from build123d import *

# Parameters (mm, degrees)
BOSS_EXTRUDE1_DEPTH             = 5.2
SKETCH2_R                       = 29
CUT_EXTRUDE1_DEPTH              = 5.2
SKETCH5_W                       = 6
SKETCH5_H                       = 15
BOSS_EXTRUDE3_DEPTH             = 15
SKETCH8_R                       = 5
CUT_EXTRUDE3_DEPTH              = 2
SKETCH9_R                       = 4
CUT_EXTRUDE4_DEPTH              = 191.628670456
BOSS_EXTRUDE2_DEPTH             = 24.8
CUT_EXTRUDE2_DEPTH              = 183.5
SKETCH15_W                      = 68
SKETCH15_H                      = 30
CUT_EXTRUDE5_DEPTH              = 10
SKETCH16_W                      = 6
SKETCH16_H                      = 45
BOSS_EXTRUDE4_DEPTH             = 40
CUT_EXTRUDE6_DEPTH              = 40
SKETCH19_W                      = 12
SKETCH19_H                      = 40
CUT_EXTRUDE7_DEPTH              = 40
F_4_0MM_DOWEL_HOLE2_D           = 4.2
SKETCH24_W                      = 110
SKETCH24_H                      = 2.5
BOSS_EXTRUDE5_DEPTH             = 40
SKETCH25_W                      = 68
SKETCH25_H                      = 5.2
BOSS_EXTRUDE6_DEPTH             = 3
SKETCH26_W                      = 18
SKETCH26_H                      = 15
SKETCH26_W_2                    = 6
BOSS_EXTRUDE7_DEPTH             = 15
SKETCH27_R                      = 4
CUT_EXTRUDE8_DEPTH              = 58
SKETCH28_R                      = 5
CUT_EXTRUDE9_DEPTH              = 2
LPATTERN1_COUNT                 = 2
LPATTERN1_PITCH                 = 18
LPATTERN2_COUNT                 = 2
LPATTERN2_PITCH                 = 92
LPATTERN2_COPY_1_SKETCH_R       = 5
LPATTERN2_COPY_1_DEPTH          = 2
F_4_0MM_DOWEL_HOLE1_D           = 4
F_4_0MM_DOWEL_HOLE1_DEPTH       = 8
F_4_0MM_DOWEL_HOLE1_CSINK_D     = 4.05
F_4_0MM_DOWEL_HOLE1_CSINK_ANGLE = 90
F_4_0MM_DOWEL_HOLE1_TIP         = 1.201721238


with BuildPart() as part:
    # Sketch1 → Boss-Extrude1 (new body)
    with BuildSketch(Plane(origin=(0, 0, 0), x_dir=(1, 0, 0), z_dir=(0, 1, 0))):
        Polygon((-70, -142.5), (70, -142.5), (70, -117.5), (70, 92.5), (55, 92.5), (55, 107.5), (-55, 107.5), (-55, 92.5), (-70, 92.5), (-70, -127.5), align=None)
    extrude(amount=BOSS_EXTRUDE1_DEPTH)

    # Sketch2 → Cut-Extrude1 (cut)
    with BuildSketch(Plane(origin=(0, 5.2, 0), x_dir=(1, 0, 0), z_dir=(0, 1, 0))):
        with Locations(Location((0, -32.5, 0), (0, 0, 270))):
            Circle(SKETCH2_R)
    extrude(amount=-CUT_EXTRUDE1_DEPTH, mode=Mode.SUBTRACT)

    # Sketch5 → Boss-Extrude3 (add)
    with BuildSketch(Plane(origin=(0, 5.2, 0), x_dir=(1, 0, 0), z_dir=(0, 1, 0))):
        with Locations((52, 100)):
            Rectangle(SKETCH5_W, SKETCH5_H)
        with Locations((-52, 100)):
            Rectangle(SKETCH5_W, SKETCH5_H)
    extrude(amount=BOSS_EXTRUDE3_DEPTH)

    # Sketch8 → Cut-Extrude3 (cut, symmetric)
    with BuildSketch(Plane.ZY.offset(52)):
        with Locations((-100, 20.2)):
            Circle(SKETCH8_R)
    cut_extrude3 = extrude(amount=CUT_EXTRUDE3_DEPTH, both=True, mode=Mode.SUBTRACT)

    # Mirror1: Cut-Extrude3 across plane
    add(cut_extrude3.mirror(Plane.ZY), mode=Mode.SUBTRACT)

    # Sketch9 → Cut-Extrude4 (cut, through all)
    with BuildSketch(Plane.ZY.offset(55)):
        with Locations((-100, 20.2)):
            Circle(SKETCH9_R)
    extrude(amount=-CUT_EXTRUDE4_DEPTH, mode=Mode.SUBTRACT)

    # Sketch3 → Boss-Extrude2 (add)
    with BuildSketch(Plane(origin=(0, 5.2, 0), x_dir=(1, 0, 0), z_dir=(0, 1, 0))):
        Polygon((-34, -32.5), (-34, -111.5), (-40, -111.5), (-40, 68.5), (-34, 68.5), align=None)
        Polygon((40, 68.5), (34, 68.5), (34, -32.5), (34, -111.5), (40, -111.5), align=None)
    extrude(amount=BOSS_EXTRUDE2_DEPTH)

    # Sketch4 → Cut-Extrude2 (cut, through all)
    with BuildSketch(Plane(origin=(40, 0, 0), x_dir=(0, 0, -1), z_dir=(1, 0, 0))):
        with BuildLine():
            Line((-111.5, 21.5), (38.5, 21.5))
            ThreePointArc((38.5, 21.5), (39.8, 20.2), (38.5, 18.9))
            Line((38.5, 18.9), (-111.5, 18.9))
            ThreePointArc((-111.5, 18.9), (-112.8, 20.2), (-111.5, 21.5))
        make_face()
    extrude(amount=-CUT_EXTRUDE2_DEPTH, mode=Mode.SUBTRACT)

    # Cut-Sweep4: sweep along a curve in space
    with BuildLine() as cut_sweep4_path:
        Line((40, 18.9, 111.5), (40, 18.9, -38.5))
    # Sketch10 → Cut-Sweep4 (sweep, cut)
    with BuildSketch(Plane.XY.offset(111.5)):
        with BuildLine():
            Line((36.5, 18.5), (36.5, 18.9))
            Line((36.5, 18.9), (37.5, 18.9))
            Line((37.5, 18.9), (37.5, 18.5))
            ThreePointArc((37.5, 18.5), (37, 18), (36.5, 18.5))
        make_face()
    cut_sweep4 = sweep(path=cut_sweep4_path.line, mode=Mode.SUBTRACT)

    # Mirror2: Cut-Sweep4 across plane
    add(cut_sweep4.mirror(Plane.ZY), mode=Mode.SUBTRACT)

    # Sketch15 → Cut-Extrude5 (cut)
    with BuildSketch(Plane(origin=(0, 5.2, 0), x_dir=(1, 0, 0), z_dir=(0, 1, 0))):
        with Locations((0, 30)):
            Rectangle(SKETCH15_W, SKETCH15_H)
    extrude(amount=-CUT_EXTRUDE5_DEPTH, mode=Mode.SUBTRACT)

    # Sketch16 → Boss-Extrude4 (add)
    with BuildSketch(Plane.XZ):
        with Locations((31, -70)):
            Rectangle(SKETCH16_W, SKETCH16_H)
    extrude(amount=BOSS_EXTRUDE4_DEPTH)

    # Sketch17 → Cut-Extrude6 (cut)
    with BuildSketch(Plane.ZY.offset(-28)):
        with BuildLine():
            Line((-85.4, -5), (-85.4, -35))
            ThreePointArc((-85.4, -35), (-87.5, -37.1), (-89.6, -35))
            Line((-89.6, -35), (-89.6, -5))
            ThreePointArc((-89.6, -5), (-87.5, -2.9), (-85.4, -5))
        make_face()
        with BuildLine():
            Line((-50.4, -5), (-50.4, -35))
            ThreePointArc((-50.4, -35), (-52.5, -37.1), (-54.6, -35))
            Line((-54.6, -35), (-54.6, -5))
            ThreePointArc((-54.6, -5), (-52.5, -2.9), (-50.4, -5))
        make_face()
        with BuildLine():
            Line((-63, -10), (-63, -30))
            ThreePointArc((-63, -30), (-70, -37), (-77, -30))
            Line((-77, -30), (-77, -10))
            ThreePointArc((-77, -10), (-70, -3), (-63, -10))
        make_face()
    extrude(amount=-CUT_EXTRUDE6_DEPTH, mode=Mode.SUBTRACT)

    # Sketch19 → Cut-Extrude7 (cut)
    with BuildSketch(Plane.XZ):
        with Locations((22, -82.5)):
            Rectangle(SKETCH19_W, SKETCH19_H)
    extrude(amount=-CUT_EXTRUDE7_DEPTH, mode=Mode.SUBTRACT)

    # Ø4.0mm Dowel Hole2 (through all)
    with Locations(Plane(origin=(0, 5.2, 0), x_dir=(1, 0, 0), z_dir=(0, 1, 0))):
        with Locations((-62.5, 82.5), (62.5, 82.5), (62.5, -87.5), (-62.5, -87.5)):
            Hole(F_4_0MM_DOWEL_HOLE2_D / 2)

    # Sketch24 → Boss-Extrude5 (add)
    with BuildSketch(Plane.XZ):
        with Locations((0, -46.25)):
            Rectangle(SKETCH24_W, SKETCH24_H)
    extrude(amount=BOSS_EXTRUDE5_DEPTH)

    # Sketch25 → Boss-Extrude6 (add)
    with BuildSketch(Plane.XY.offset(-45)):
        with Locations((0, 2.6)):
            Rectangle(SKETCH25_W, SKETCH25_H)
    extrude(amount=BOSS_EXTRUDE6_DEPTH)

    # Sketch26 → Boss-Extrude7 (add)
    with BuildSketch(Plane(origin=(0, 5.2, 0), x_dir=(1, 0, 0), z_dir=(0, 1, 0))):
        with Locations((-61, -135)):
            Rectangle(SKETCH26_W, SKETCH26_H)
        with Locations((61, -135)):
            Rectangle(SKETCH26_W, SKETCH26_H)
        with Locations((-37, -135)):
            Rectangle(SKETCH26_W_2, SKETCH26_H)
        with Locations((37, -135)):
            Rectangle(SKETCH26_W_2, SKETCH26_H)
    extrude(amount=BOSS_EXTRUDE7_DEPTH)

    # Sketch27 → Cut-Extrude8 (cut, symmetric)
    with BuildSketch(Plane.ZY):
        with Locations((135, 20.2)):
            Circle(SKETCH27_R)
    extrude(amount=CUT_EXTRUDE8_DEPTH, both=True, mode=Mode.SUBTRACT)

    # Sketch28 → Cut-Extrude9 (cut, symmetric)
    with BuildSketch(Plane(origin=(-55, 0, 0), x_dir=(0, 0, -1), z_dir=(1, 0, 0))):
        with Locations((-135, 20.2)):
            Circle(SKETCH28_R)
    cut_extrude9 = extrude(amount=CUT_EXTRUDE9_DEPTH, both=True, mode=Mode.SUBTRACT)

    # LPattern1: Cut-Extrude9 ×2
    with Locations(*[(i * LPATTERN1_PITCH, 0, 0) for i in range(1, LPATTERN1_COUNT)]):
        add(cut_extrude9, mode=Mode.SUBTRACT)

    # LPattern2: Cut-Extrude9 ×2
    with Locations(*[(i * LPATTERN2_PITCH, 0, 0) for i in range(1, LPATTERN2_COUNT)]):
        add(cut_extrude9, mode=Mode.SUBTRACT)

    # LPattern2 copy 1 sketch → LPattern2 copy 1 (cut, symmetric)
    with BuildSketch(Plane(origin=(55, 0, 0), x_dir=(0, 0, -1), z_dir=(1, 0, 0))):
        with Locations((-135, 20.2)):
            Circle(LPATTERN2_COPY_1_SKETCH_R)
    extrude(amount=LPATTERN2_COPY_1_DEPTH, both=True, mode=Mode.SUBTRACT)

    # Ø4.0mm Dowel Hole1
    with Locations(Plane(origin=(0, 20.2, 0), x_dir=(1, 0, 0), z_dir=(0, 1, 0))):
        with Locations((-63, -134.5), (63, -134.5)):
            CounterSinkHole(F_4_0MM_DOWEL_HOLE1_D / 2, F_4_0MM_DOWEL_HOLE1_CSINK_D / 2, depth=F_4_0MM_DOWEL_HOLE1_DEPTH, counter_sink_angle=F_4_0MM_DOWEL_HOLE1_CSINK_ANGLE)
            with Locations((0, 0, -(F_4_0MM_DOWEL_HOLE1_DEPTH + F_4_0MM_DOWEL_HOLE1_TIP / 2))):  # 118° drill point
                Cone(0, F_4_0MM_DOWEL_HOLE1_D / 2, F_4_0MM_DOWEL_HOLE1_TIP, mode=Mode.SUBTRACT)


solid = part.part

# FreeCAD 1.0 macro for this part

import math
import FreeCAD as App
import Part
import Sketcher

doc = App.newDocument("Part")
body = doc.addObject("PartDesign::Body", "Body")

sketch1 = body.newObject("Sketcher::SketchObject", "Sketch")
sketch1.AttachmentSupport = (doc.getObject("XZ_Plane"), [""])
sketch1.MapMode = "FlatFace"
sketch1.addGeometry(Part.LineSegment(App.Vector(-70, 142.5, 0), App.Vector(70, 142.5, 0)), False)
sketch1.addGeometry(Part.LineSegment(App.Vector(70, 142.5, 0), App.Vector(70, -92.5, 0)), False)
sketch1.addGeometry(Part.LineSegment(App.Vector(70, -92.5, 0), App.Vector(55, -92.5, 0)), False)
sketch1.addGeometry(Part.LineSegment(App.Vector(55, -92.5, 0), App.Vector(55, -107.5, 0)), False)
sketch1.addGeometry(Part.LineSegment(App.Vector(55, -107.5, 0), App.Vector(-55, -107.5, 0)), False)
sketch1.addGeometry(Part.LineSegment(App.Vector(-55, -107.5, 0), App.Vector(-55, -92.5, 0)), False)
sketch1.addGeometry(Part.LineSegment(App.Vector(-55, -92.5, 0), App.Vector(-70, -92.5, 0)), False)
sketch1.addGeometry(Part.LineSegment(App.Vector(-70, -92.5, 0), App.Vector(-70, 142.5, 0)), False)
sketch1.addConstraint(Sketcher.Constraint("Coincident", 0, 2, 1, 1))
sketch1.addConstraint(Sketcher.Constraint("Coincident", 1, 2, 2, 1))
sketch1.addConstraint(Sketcher.Constraint("Coincident", 2, 2, 3, 1))
sketch1.addConstraint(Sketcher.Constraint("Coincident", 3, 2, 4, 1))
sketch1.addConstraint(Sketcher.Constraint("Coincident", 4, 2, 5, 1))
sketch1.addConstraint(Sketcher.Constraint("Coincident", 5, 2, 6, 1))
sketch1.addConstraint(Sketcher.Constraint("Coincident", 6, 2, 7, 1))
sketch1.addConstraint(Sketcher.Constraint("Coincident", 7, 2, 0, 1))
sketch1.addConstraint(Sketcher.Constraint("Horizontal", 0))
sketch1.addConstraint(Sketcher.Constraint("Vertical", 1))
sketch1.addConstraint(Sketcher.Constraint("Horizontal", 2))
sketch1.addConstraint(Sketcher.Constraint("Vertical", 3))
sketch1.addConstraint(Sketcher.Constraint("Horizontal", 4))
sketch1.addConstraint(Sketcher.Constraint("Vertical", 5))
sketch1.addConstraint(Sketcher.Constraint("Horizontal", 6))
sketch1.addConstraint(Sketcher.Constraint("Vertical", 7))
sketch1.addConstraint(Sketcher.Constraint("Symmetric", 2, 2, 5, 2, -2))
sketch1.addConstraint(Sketcher.Constraint("Equal", 2, 6))
sketch1.addConstraint(Sketcher.Constraint("Equal", 6, 3))
sketch1.addConstraint(Sketcher.Constraint("DistanceX", 0, 1, 0, 2, 140.0))
sketch1.addConstraint(Sketcher.Constraint("DistanceX", 2, 2, 2, 1, 15.0))
sketch1.addConstraint(Sketcher.Constraint("DistanceY", 1, 2, 1, 1, 235.0))
sketch1.addConstraint(Sketcher.Constraint("DistanceY", -1, 1, 0, 2, 142.5))
pad1 = body.newObject("PartDesign::Pad", "Pad")
pad1.Profile = sketch1
pad1.Length = 5.2
pad1.Reversed = True

sketch2 = body.newObject("Sketcher::SketchObject", "Sketch001")
sketch2.AttachmentSupport = (doc.getObject("XZ_Plane"), [""])
sketch2.MapMode = "FlatFace"
sketch2.AttachmentOffset = App.Placement(App.Vector(0, 0, -5.2), App.Rotation())
sketch2.addGeometry(Part.Circle(App.Vector(0, 32.5, 0), App.Vector(0, 0, 1), 29), False)
sketch2.addConstraint(Sketcher.Constraint("PointOnObject", 0, 3, -2))
sketch2.addConstraint(Sketcher.Constraint("Diameter", 0, 58.0))
sketch2.addConstraint(Sketcher.Constraint("DistanceY", -1, 1, 0, 3, 32.5))
pocket1 = body.newObject("PartDesign::Pocket", "Pocket")
pocket1.Profile = sketch2
pocket1.Length = 5.2
pocket1.Reversed = True

sketch3 = body.newObject("Sketcher::SketchObject", "Sketch002")
sketch3.AttachmentSupport = (doc.getObject("XZ_Plane"), [""])
sketch3.MapMode = "FlatFace"
sketch3.AttachmentOffset = App.Placement(App.Vector(0, 0, -5.2), App.Rotation())
sketch3.addGeometry(Part.LineSegment(App.Vector(49, -107.5, 0), App.Vector(49, -92.5, 0)), False)
sketch3.addGeometry(Part.LineSegment(App.Vector(49, -92.5, 0), App.Vector(55, -92.5, 0)), False)
sketch3.addGeometry(Part.LineSegment(App.Vector(55, -92.5, 0), App.Vector(55, -107.5, 0)), False)
sketch3.addGeometry(Part.LineSegment(App.Vector(55, -107.5, 0), App.Vector(49, -107.5, 0)), False)
sketch3.addGeometry(Part.LineSegment(App.Vector(-55, -107.5, 0), App.Vector(-55, -92.5, 0)), False)
sketch3.addGeometry(Part.LineSegment(App.Vector(-55, -92.5, 0), App.Vector(-49, -92.5, 0)), False)
sketch3.addGeometry(Part.LineSegment(App.Vector(-49, -92.5, 0), App.Vector(-49, -107.5, 0)), False)
sketch3.addGeometry(Part.LineSegment(App.Vector(-49, -107.5, 0), App.Vector(-55, -107.5, 0)), False)
sketch3.addConstraint(Sketcher.Constraint("Coincident", 0, 2, 1, 1))
sketch3.addConstraint(Sketcher.Constraint("Coincident", 1, 2, 2, 1))
sketch3.addConstraint(Sketcher.Constraint("Coincident", 2, 2, 3, 1))
sketch3.addConstraint(Sketcher.Constraint("Coincident", 3, 2, 0, 1))
sketch3.addConstraint(Sketcher.Constraint("Coincident", 4, 2, 5, 1))
sketch3.addConstraint(Sketcher.Constraint("Coincident", 5, 2, 6, 1))
sketch3.addConstraint(Sketcher.Constraint("Coincident", 6, 2, 7, 1))
sketch3.addConstraint(Sketcher.Constraint("Coincident", 7, 2, 4, 1))
sketch3.addConstraint(Sketcher.Constraint("Vertical", 0))
sketch3.addConstraint(Sketcher.Constraint("Horizontal", 1))
sketch3.addConstraint(Sketcher.Constraint("Vertical", 2))
sketch3.addConstraint(Sketcher.Constraint("Horizontal", 3))
sketch3.addConstraint(Sketcher.Constraint("Vertical", 4))
sketch3.addConstraint(Sketcher.Constraint("Horizontal", 5))
sketch3.addConstraint(Sketcher.Constraint("Vertical", 6))
sketch3.addConstraint(Sketcher.Constraint("Horizontal", 7))
sketch3.addConstraint(Sketcher.Constraint("Symmetric", 1, 2, 4, 2, -2))
sketch3.addConstraint(Sketcher.Constraint("Symmetric", 3, 2, 6, 2, -2))
sketch3.addConstraint(Sketcher.Constraint("DistanceX", 1, 1, 1, 2, 6.0))
sketch3.addConstraint(Sketcher.Constraint("DistanceY", 0, 1, 0, 2, 15.0))
sketch3.addConstraint(Sketcher.Constraint("DistanceX", -1, 1, 0, 2, 49.0))
sketch3.addConstraint(Sketcher.Constraint("DistanceY", 0, 2, -1, 1, 92.5))
pad2 = body.newObject("PartDesign::Pad", "Pad001")
pad2.Profile = sketch3
pad2.Length = 15
pad2.Reversed = True

sketch4 = body.newObject("Sketcher::SketchObject", "Sketch003")
sketch4.AttachmentSupport = (doc.getObject("YZ_Plane"), [""])
sketch4.MapMode = "FlatFace"
sketch4.AttachmentOffset = App.Placement(App.Vector(0, 0, -52), App.Rotation())
sketch4.addGeometry(Part.Circle(App.Vector(20.2, -100, 0), App.Vector(0, 0, 1), 5), False)
sketch4.addConstraint(Sketcher.Constraint("Diameter", 0, 10.0))
sketch4.addConstraint(Sketcher.Constraint("DistanceY", 0, 3, -1, 1, 100.0))
sketch4.addConstraint(Sketcher.Constraint("DistanceX", -1, 1, 0, 3, 20.2))
pocket2 = body.newObject("PartDesign::Pocket", "Pocket001")
pocket2.Profile = sketch4
pocket2.Length = 4
pocket2.Midplane = True
doc.recompute()

mirrored = body.newObject("PartDesign::Mirrored", "Mirrored")
mirrored.Originals = [pocket2]
mirrored.MirrorPlane = (doc.getObject("YZ_Plane"), [""])
body.Tip = mirrored

sketch5 = body.newObject("Sketcher::SketchObject", "Sketch004")
sketch5.AttachmentSupport = (doc.getObject("YZ_Plane"), [""])
sketch5.MapMode = "FlatFace"
sketch5.AttachmentOffset = App.Placement(App.Vector(0, 0, -55), App.Rotation())
sketch5.addGeometry(Part.Circle(App.Vector(20.2, -100, 0), App.Vector(0, 0, 1), 4), False)
sketch5.addConstraint(Sketcher.Constraint("Diameter", 0, 8.0))
sketch5.addConstraint(Sketcher.Constraint("DistanceY", 0, 3, -1, 1, 100.0))
sketch5.addConstraint(Sketcher.Constraint("DistanceX", -1, 1, 0, 3, 20.2))
pocket3 = body.newObject("PartDesign::Pocket", "Pocket002")
pocket3.Profile = sketch5
pocket3.Type = "ThroughAll"
pocket3.Reversed = True

sketch6 = body.newObject("Sketcher::SketchObject", "Sketch005")
sketch6.AttachmentSupport = (doc.getObject("XZ_Plane"), [""])
sketch6.MapMode = "FlatFace"
sketch6.AttachmentOffset = App.Placement(App.Vector(0, 0, -5.2), App.Rotation())
sketch6.addGeometry(Part.LineSegment(App.Vector(-34, 111.5, 0), App.Vector(-34, -68.5, 0)), False)
sketch6.addGeometry(Part.LineSegment(App.Vector(-34, -68.5, 0), App.Vector(-40, -68.5, 0)), False)
sketch6.addGeometry(Part.LineSegment(App.Vector(-40, -68.5, 0), App.Vector(-40, 111.5, 0)), False)
sketch6.addGeometry(Part.LineSegment(App.Vector(-40, 111.5, 0), App.Vector(-34, 111.5, 0)), False)
sketch6.addGeometry(Part.LineSegment(App.Vector(40, -68.5, 0), App.Vector(34, -68.5, 0)), False)
sketch6.addGeometry(Part.LineSegment(App.Vector(34, -68.5, 0), App.Vector(34, 111.5, 0)), False)
sketch6.addGeometry(Part.LineSegment(App.Vector(34, 111.5, 0), App.Vector(40, 111.5, 0)), False)
sketch6.addGeometry(Part.LineSegment(App.Vector(40, 111.5, 0), App.Vector(40, -68.5, 0)), False)
sketch6.addConstraint(Sketcher.Constraint("Coincident", 0, 2, 1, 1))
sketch6.addConstraint(Sketcher.Constraint("Coincident", 1, 2, 2, 1))
sketch6.addConstraint(Sketcher.Constraint("Coincident", 2, 2, 3, 1))
sketch6.addConstraint(Sketcher.Constraint("Coincident", 3, 2, 0, 1))
sketch6.addConstraint(Sketcher.Constraint("Coincident", 4, 2, 5, 1))
sketch6.addConstraint(Sketcher.Constraint("Coincident", 5, 2, 6, 1))
sketch6.addConstraint(Sketcher.Constraint("Coincident", 6, 2, 7, 1))
sketch6.addConstraint(Sketcher.Constraint("Coincident", 7, 2, 4, 1))
sketch6.addConstraint(Sketcher.Constraint("Vertical", 0))
sketch6.addConstraint(Sketcher.Constraint("Horizontal", 1))
sketch6.addConstraint(Sketcher.Constraint("Vertical", 2))
sketch6.addConstraint(Sketcher.Constraint("Horizontal", 3))
sketch6.addConstraint(Sketcher.Constraint("Horizontal", 4))
sketch6.addConstraint(Sketcher.Constraint("Vertical", 5))
sketch6.addConstraint(Sketcher.Constraint("Horizontal", 6))
sketch6.addConstraint(Sketcher.Constraint("Vertical", 7))
sketch6.addConstraint(Sketcher.Constraint("Symmetric", 0, 2, 4, 2, -2))
sketch6.addConstraint(Sketcher.Constraint("Symmetric", 2, 2, 6, 2, -2))
sketch6.addConstraint(Sketcher.Constraint("DistanceX", 1, 2, 1, 1, 6.0))
sketch6.addConstraint(Sketcher.Constraint("DistanceY", 0, 2, 0, 1, 180.0))
sketch6.addConstraint(Sketcher.Constraint("DistanceX", 0, 2, -1, 1, 34.0))
sketch6.addConstraint(Sketcher.Constraint("DistanceY", 0, 2, -1, 1, 68.5))
pad3 = body.newObject("PartDesign::Pad", "Pad002")
pad3.Profile = sketch6
pad3.Length = 24.8
pad3.Reversed = True

sketch7 = body.newObject("Sketcher::SketchObject", "Sketch006")
sketch7.AttachmentSupport = (doc.getObject("YZ_Plane"), [""])
sketch7.MapMode = "FlatFace"
sketch7.AttachmentOffset = App.Placement(App.Vector(0, 0, 40), App.Rotation())
sketch7.addGeometry(Part.LineSegment(App.Vector(21.5, -38.5, 0), App.Vector(21.5, 111.5, 0)), False)
sketch7.addGeometry(Part.ArcOfCircle(Part.Circle(App.Vector(20.2, 111.5, 0), App.Vector(0, 0, 1), 1.3), math.radians(0), math.radians(180)), False)
sketch7.addGeometry(Part.LineSegment(App.Vector(18.9, 111.5, 0), App.Vector(18.9, -38.5, 0)), False)
sketch7.addGeometry(Part.ArcOfCircle(Part.Circle(App.Vector(20.2, -38.5, 0), App.Vector(0, 0, 1), 1.3), math.radians(180), math.radians(360)), False)
sketch7.addConstraint(Sketcher.Constraint("Tangent", 0, 2, 1, 1))
sketch7.addConstraint(Sketcher.Constraint("Tangent", 1, 2, 2, 1))
sketch7.addConstraint(Sketcher.Constraint("Tangent", 2, 2, 3, 1))
sketch7.addConstraint(Sketcher.Constraint("Tangent", 3, 2, 0, 1))
sketch7.addConstraint(Sketcher.Constraint("Vertical", 0))
sketch7.addConstraint(Sketcher.Constraint("Vertical", 2))
sketch7.addConstraint(Sketcher.Constraint("Radius", 1, 1.3))
sketch7.addConstraint(Sketcher.Constraint("DistanceY", 0, 1, 0, 2, 150.0))
sketch7.addConstraint(Sketcher.Constraint("DistanceX", -1, 1, 1, 3, 20.2))
sketch7.addConstraint(Sketcher.Constraint("DistanceY", -1, 1, 1, 3, 111.5))
pocket4 = body.newObject("PartDesign::Pocket", "Pocket003")
pocket4.Profile = sketch7
pocket4.Type = "ThroughAll"

sketch8 = body.newObject("Sketcher::SketchObject", "Sketch007")
sketch8.AttachmentSupport = (doc.getObject("XY_Plane"), [""])
sketch8.MapMode = "FlatFace"
sketch8.AttachmentOffset = App.Placement(App.Vector(0, 0, 111.5), App.Rotation())
sketch8.addGeometry(Part.LineSegment(App.Vector(36.5, 18.9, 0), App.Vector(36.5, 18.5, 0)), False)
sketch8.addGeometry(Part.ArcOfCircle(Part.Circle(App.Vector(37, 18.5, 0), App.Vector(0, 0, 1), 0.5), math.radians(180), math.radians(360)), False)
sketch8.addGeometry(Part.LineSegment(App.Vector(37.5, 18.5, 0), App.Vector(37.5, 18.9, 0)), False)
sketch8.addGeometry(Part.LineSegment(App.Vector(37.5, 18.9, 0), App.Vector(36.5, 18.9, 0)), False)
sketch8.addConstraint(Sketcher.Constraint("Tangent", 0, 2, 1, 1))
sketch8.addConstraint(Sketcher.Constraint("Tangent", 1, 2, 2, 1))
sketch8.addConstraint(Sketcher.Constraint("Coincident", 2, 2, 3, 1))
sketch8.addConstraint(Sketcher.Constraint("Coincident", 3, 2, 0, 1))
sketch8.addConstraint(Sketcher.Constraint("Vertical", 0))
sketch8.addConstraint(Sketcher.Constraint("Vertical", 2))
sketch8.addConstraint(Sketcher.Constraint("Horizontal", 3))
sketch8.addConstraint(Sketcher.Constraint("Radius", 1, 0.5))
sketch8.addConstraint(Sketcher.Constraint("DistanceY", 0, 2, 0, 1, 0.4))
sketch8.addConstraint(Sketcher.Constraint("DistanceX", -1, 1, 1, 3, 37.0))
sketch8.addConstraint(Sketcher.Constraint("DistanceY", -1, 1, 1, 3, 18.5))

sketch9 = body.newObject("Sketcher::SketchObject", "Sketch008")
sketch9.AttachmentSupport = (doc.getObject("XZ_Plane"), [""])
sketch9.MapMode = "FlatFace"
sketch9.AttachmentOffset = App.Placement(App.Vector(0, 0, -18.9), App.Rotation())
sketch9.addGeometry(Part.LineSegment(App.Vector(40, 111.5, 0), App.Vector(40, -38.5, 0)), False)
sketch9.addConstraint(Sketcher.Constraint("Vertical", 0))
sketch9.addConstraint(Sketcher.Constraint("DistanceY", 0, 2, 0, 1, 150.0))
sketch9.addConstraint(Sketcher.Constraint("DistanceX", -1, 1, 0, 1, 40.0))
sketch9.addConstraint(Sketcher.Constraint("DistanceY", -1, 1, 0, 1, 111.5))
doc.recompute()

subtractivepipe = body.newObject("PartDesign::SubtractivePipe", "SubtractivePipe")
subtractivepipe.Profile = sketch8
subtractivepipe.Spine = (sketch9, ["Edge1"])
doc.recompute()

mirrored2 = body.newObject("PartDesign::Mirrored", "Mirrored001")
mirrored2.Originals = [subtractivepipe]
mirrored2.MirrorPlane = (doc.getObject("YZ_Plane"), [""])
body.Tip = mirrored2

sketch10 = body.newObject("Sketcher::SketchObject", "Sketch009")
sketch10.AttachmentSupport = (doc.getObject("XZ_Plane"), [""])
sketch10.MapMode = "FlatFace"
sketch10.AttachmentOffset = App.Placement(App.Vector(0, 0, -5.2), App.Rotation())
sketch10.addGeometry(Part.LineSegment(App.Vector(-34, -45, 0), App.Vector(-34, -15, 0)), False)
sketch10.addGeometry(Part.LineSegment(App.Vector(-34, -15, 0), App.Vector(34, -15, 0)), False)
sketch10.addGeometry(Part.LineSegment(App.Vector(34, -15, 0), App.Vector(34, -45, 0)), False)
sketch10.addGeometry(Part.LineSegment(App.Vector(34, -45, 0), App.Vector(-34, -45, 0)), False)
sketch10.addConstraint(Sketcher.Constraint("Coincident", 0, 2, 1, 1))
sketch10.addConstraint(Sketcher.Constraint("Coincident", 1, 2, 2, 1))
sketch10.addConstraint(Sketcher.Constraint("Coincident", 2, 2, 3, 1))
sketch10.addConstraint(Sketcher.Constraint("Coincident", 3, 2, 0, 1))
sketch10.addConstraint(Sketcher.Constraint("Vertical", 0))
sketch10.addConstraint(Sketcher.Constraint("Horizontal", 1))
sketch10.addConstraint(Sketcher.Constraint("Vertical", 2))
sketch10.addConstraint(Sketcher.Constraint("Horizontal", 3))
sketch10.addConstraint(Sketcher.Constraint("DistanceX", 1, 1, 1, 2, 68.0))
sketch10.addConstraint(Sketcher.Constraint("DistanceY", 0, 1, 0, 2, 30.0))
sketch10.addConstraint(Sketcher.Constraint("DistanceX", 0, 2, -1, 1, 34.0))
sketch10.addConstraint(Sketcher.Constraint("DistanceY", 0, 2, -1, 1, 15.0))
pocket5 = body.newObject("PartDesign::Pocket", "Pocket004")
pocket5.Profile = sketch10
pocket5.Length = 10
pocket5.Reversed = True

sketch11 = body.newObject("Sketcher::SketchObject", "Sketch010")
sketch11.AttachmentSupport = (doc.getObject("XZ_Plane"), [""])
sketch11.MapMode = "FlatFace"
sketch11.addGeometry(Part.LineSegment(App.Vector(28, -47.5, 0), App.Vector(28, -92.5, 0)), False)
sketch11.addGeometry(Part.LineSegment(App.Vector(28, -92.5, 0), App.Vector(34, -92.5, 0)), False)
sketch11.addGeometry(Part.LineSegment(App.Vector(34, -92.5, 0), App.Vector(34, -47.5, 0)), False)
sketch11.addGeometry(Part.LineSegment(App.Vector(34, -47.5, 0), App.Vector(28, -47.5, 0)), False)
sketch11.addConstraint(Sketcher.Constraint("Coincident", 0, 2, 1, 1))
sketch11.addConstraint(Sketcher.Constraint("Coincident", 1, 2, 2, 1))
sketch11.addConstraint(Sketcher.Constraint("Coincident", 2, 2, 3, 1))
sketch11.addConstraint(Sketcher.Constraint("Coincident", 3, 2, 0, 1))
sketch11.addConstraint(Sketcher.Constraint("Vertical", 0))
sketch11.addConstraint(Sketcher.Constraint("Horizontal", 1))
sketch11.addConstraint(Sketcher.Constraint("Vertical", 2))
sketch11.addConstraint(Sketcher.Constraint("Horizontal", 3))
sketch11.addConstraint(Sketcher.Constraint("DistanceX", 1, 1, 1, 2, 6.0))
sketch11.addConstraint(Sketcher.Constraint("DistanceY", 0, 2, 0, 1, 45.0))
sketch11.addConstraint(Sketcher.Constraint("DistanceX", -1, 1, 0, 2, 28.0))
sketch11.addConstraint(Sketcher.Constraint("DistanceY", 0, 2, -1, 1, 92.5))
pad4 = body.newObject("PartDesign::Pad", "Pad003")
pad4.Profile = sketch11
pad4.Length = 40

sketch12 = body.newObject("Sketcher::SketchObject", "Sketch011")
sketch12.AttachmentSupport = (doc.getObject("YZ_Plane"), [""])
sketch12.MapMode = "FlatFace"
sketch12.AttachmentOffset = App.Placement(App.Vector(0, 0, 28), App.Rotation())
sketch12.addGeometry(Part.LineSegment(App.Vector(-35, -85.4, 0), App.Vector(-5, -85.4, 0)), False)
sketch12.addGeometry(Part.ArcOfCircle(Part.Circle(App.Vector(-5, -87.5, 0), App.Vector(0, 0, 1), 2.1), math.radians(-90), math.radians(90)), False)
sketch12.addGeometry(Part.LineSegment(App.Vector(-5, -89.6, 0), App.Vector(-35, -89.6, 0)), False)
sketch12.addGeometry(Part.ArcOfCircle(Part.Circle(App.Vector(-35, -87.5, 0), App.Vector(0, 0, 1), 2.1), math.radians(90), math.radians(270)), False)
sketch12.addGeometry(Part.LineSegment(App.Vector(-35, -50.4, 0), App.Vector(-5, -50.4, 0)), False)
sketch12.addGeometry(Part.ArcOfCircle(Part.Circle(App.Vector(-5, -52.5, 0), App.Vector(0, 0, 1), 2.1), math.radians(-90), math.radians(90)), False)
sketch12.addGeometry(Part.LineSegment(App.Vector(-5, -54.6, 0), App.Vector(-35, -54.6, 0)), False)
sketch12.addGeometry(Part.ArcOfCircle(Part.Circle(App.Vector(-35, -52.5, 0), App.Vector(0, 0, 1), 2.1), math.radians(90), math.radians(270)), False)
sketch12.addGeometry(Part.LineSegment(App.Vector(-30, -63, 0), App.Vector(-10, -63, 0)), False)
sketch12.addGeometry(Part.ArcOfCircle(Part.Circle(App.Vector(-10, -70, 0), App.Vector(0, 0, 1), 7), math.radians(-90), math.radians(90)), False)
sketch12.addGeometry(Part.LineSegment(App.Vector(-10, -77, 0), App.Vector(-30, -77, 0)), False)
sketch12.addGeometry(Part.ArcOfCircle(Part.Circle(App.Vector(-30, -70, 0), App.Vector(0, 0, 1), 7), math.radians(90), math.radians(270)), False)
sketch12.addConstraint(Sketcher.Constraint("Tangent", 0, 2, 1, 2))
sketch12.addConstraint(Sketcher.Constraint("Tangent", 1, 1, 2, 1))
sketch12.addConstraint(Sketcher.Constraint("Tangent", 2, 2, 3, 2))
sketch12.addConstraint(Sketcher.Constraint("Tangent", 3, 1, 0, 1))
sketch12.addConstraint(Sketcher.Constraint("Tangent", 4, 2, 5, 2))
sketch12.addConstraint(Sketcher.Constraint("Tangent", 5, 1, 6, 1))
sketch12.addConstraint(Sketcher.Constraint("Tangent", 6, 2, 7, 2))
sketch12.addConstraint(Sketcher.Constraint("Tangent", 7, 1, 4, 1))
sketch12.addConstraint(Sketcher.Constraint("Tangent", 8, 2, 9, 2))
sketch12.addConstraint(Sketcher.Constraint("Tangent", 9, 1, 10, 1))
sketch12.addConstraint(Sketcher.Constraint("Tangent", 10, 2, 11, 2))
sketch12.addConstraint(Sketcher.Constraint("Tangent", 11, 1, 8, 1))
sketch12.addConstraint(Sketcher.Constraint("Horizontal", 0))
sketch12.addConstraint(Sketcher.Constraint("Horizontal", 2))
sketch12.addConstraint(Sketcher.Constraint("Horizontal", 4))
sketch12.addConstraint(Sketcher.Constraint("Horizontal", 6))
sketch12.addConstraint(Sketcher.Constraint("Horizontal", 8))
sketch12.addConstraint(Sketcher.Constraint("Horizontal", 10))
sketch12.addConstraint(Sketcher.Constraint("Equal", 3, 5))
sketch12.addConstraint(Sketcher.Constraint("Vertical", 1, 3, 5, 3))
sketch12.addConstraint(Sketcher.Constraint("Vertical", 3, 3, 7, 3))
sketch12.addConstraint(Sketcher.Constraint("Radius", 9, 7.0))
sketch12.addConstraint(Sketcher.Constraint("Radius", 1, 2.1))
sketch12.addConstraint(Sketcher.Constraint("DistanceX", 0, 1, 0, 2, 30.0))
sketch12.addConstraint(Sketcher.Constraint("DistanceX", 8, 1, 8, 2, 20.0))
sketch12.addConstraint(Sketcher.Constraint("DistanceX", 1, 3, -1, 1, 5.0))
sketch12.addConstraint(Sketcher.Constraint("DistanceX", 9, 3, -1, 1, 10.0))
sketch12.addConstraint(Sketcher.Constraint("DistanceY", 9, 3, -1, 1, 70.0))
sketch12.addConstraint(Sketcher.Constraint("DistanceY", 1, 3, 5, 3, 35.0))
sketch12.addConstraint(Sketcher.Constraint("DistanceY", 1, 3, -1, 1, 87.5))
pocket6 = body.newObject("PartDesign::Pocket", "Pocket005")
pocket6.Profile = sketch12
pocket6.Length = 40
pocket6.Reversed = True

sketch13 = body.newObject("Sketcher::SketchObject", "Sketch012")
sketch13.AttachmentSupport = (doc.getObject("XZ_Plane"), [""])
sketch13.MapMode = "FlatFace"
sketch13.addGeometry(Part.LineSegment(App.Vector(16, -62.5, 0), App.Vector(16, -102.5, 0)), False)
sketch13.addGeometry(Part.LineSegment(App.Vector(16, -102.5, 0), App.Vector(28, -102.5, 0)), False)
sketch13.addGeometry(Part.LineSegment(App.Vector(28, -102.5, 0), App.Vector(28, -62.5, 0)), False)
sketch13.addGeometry(Part.LineSegment(App.Vector(28, -62.5, 0), App.Vector(16, -62.5, 0)), False)
sketch13.addConstraint(Sketcher.Constraint("Coincident", 0, 2, 1, 1))
sketch13.addConstraint(Sketcher.Constraint("Coincident", 1, 2, 2, 1))
sketch13.addConstraint(Sketcher.Constraint("Coincident", 2, 2, 3, 1))
sketch13.addConstraint(Sketcher.Constraint("Coincident", 3, 2, 0, 1))
sketch13.addConstraint(Sketcher.Constraint("Vertical", 0))
sketch13.addConstraint(Sketcher.Constraint("Horizontal", 1))
sketch13.addConstraint(Sketcher.Constraint("Vertical", 2))
sketch13.addConstraint(Sketcher.Constraint("Horizontal", 3))
sketch13.addConstraint(Sketcher.Constraint("DistanceX", 1, 1, 1, 2, 12.0))
sketch13.addConstraint(Sketcher.Constraint("DistanceY", 0, 2, 0, 1, 40.0))
sketch13.addConstraint(Sketcher.Constraint("DistanceX", -1, 1, 0, 2, 16.0))
sketch13.addConstraint(Sketcher.Constraint("DistanceY", 0, 2, -1, 1, 102.5))
pocket7 = body.newObject("PartDesign::Pocket", "Pocket006")
pocket7.Profile = sketch13
pocket7.Length = 40

sketch14 = body.newObject("Sketcher::SketchObject", "Sketch013")
sketch14.AttachmentSupport = (doc.getObject("XZ_Plane"), [""])
sketch14.MapMode = "FlatFace"
sketch14.AttachmentOffset = App.Placement(App.Vector(0, 0, -5.2), App.Rotation())
sketch14.addGeometry(Part.Circle(App.Vector(-62.5, -82.5, 0), App.Vector(0, 0, 1), 2.1), False)
sketch14.addGeometry(Part.Circle(App.Vector(62.5, -82.5, 0), App.Vector(0, 0, 1), 2.1), False)
sketch14.addGeometry(Part.Circle(App.Vector(62.5, 87.5, 0), App.Vector(0, 0, 1), 2.1), False)
sketch14.addGeometry(Part.Circle(App.Vector(-62.5, 87.5, 0), App.Vector(0, 0, 1), 2.1), False)
sketch14.addConstraint(Sketcher.Constraint("Equal", 0, 1))
sketch14.addConstraint(Sketcher.Constraint("Equal", 1, 2))
sketch14.addConstraint(Sketcher.Constraint("Equal", 2, 3))
sketch14.addConstraint(Sketcher.Constraint("Symmetric", 0, 3, 1, 3, -2))
sketch14.addConstraint(Sketcher.Constraint("Symmetric", 2, 3, 3, 3, -2))
sketch14.addConstraint(Sketcher.Constraint("Vertical", 1, 3, 2, 3))
sketch14.addConstraint(Sketcher.Constraint("Diameter", 0, 4.2))
sketch14.addConstraint(Sketcher.Constraint("DistanceX", 0, 3, 1, 3, 125.0))
sketch14.addConstraint(Sketcher.Constraint("DistanceY", 1, 3, 2, 3, 170.0))
sketch14.addConstraint(Sketcher.Constraint("DistanceY", 0, 3, -1, 1, 82.5))
doc.recompute()
hole = body.newObject("PartDesign::Hole", "Hole")
hole.Profile = sketch14
hole.ThreadType = "None"
hole.Diameter = 4.2
hole.DepthType = "ThroughAll"
hole.Reversed = True

sketch15 = body.newObject("Sketcher::SketchObject", "Sketch014")
sketch15.AttachmentSupport = (doc.getObject("XZ_Plane"), [""])
sketch15.MapMode = "FlatFace"
sketch15.addGeometry(Part.LineSegment(App.Vector(-55, -45, 0), App.Vector(-55, -47.5, 0)), False)
sketch15.addGeometry(Part.LineSegment(App.Vector(-55, -47.5, 0), App.Vector(55, -47.5, 0)), False)
sketch15.addGeometry(Part.LineSegment(App.Vector(55, -47.5, 0), App.Vector(55, -45, 0)), False)
sketch15.addGeometry(Part.LineSegment(App.Vector(55, -45, 0), App.Vector(-55, -45, 0)), False)
sketch15.addConstraint(Sketcher.Constraint("Coincident", 0, 2, 1, 1))
sketch15.addConstraint(Sketcher.Constraint("Coincident", 1, 2, 2, 1))
sketch15.addConstraint(Sketcher.Constraint("Coincident", 2, 2, 3, 1))
sketch15.addConstraint(Sketcher.Constraint("Coincident", 3, 2, 0, 1))
sketch15.addConstraint(Sketcher.Constraint("Vertical", 0))
sketch15.addConstraint(Sketcher.Constraint("Horizontal", 1))
sketch15.addConstraint(Sketcher.Constraint("Vertical", 2))
sketch15.addConstraint(Sketcher.Constraint("Horizontal", 3))
sketch15.addConstraint(Sketcher.Constraint("DistanceX", 1, 1, 1, 2, 110.0))
sketch15.addConstraint(Sketcher.Constraint("DistanceY", 0, 2, 0, 1, 2.5))
sketch15.addConstraint(Sketcher.Constraint("DistanceX", 0, 2, -1, 1, 55.0))
sketch15.addConstraint(Sketcher.Constraint("DistanceY", 2, 2, -1, 1, 45.0))
pad5 = body.newObject("PartDesign::Pad", "Pad004")
pad5.Profile = sketch15
pad5.Length = 40

sketch16 = body.newObject("Sketcher::SketchObject", "Sketch015")
sketch16.AttachmentSupport = (doc.getObject("XY_Plane"), [""])
sketch16.MapMode = "FlatFace"
sketch16.AttachmentOffset = App.Placement(App.Vector(0, 0, -45), App.Rotation())
sketch16.addGeometry(Part.LineSegment(App.Vector(-34, 5.2, 0), App.Vector(-34, 0, 0)), False)
sketch16.addGeometry(Part.LineSegment(App.Vector(-34, 0, 0), App.Vector(34, 0, 0)), False)
sketch16.addGeometry(Part.LineSegment(App.Vector(34, 0, 0), App.Vector(34, 5.2, 0)), False)
sketch16.addGeometry(Part.LineSegment(App.Vector(34, 5.2, 0), App.Vector(-34, 5.2, 0)), False)
sketch16.addConstraint(Sketcher.Constraint("Coincident", 0, 2, 1, 1))
sketch16.addConstraint(Sketcher.Constraint("Coincident", 1, 2, 2, 1))
sketch16.addConstraint(Sketcher.Constraint("Coincident", 2, 2, 3, 1))
sketch16.addConstraint(Sketcher.Constraint("Coincident", 3, 2, 0, 1))
sketch16.addConstraint(Sketcher.Constraint("Vertical", 0))
sketch16.addConstraint(Sketcher.Constraint("Horizontal", 1))
sketch16.addConstraint(Sketcher.Constraint("Vertical", 2))
sketch16.addConstraint(Sketcher.Constraint("Horizontal", 3))
sketch16.addConstraint(Sketcher.Constraint("Symmetric", 0, 2, 1, 2, -1, 1))
sketch16.addConstraint(Sketcher.Constraint("DistanceX", 1, 1, 1, 2, 68.0))
sketch16.addConstraint(Sketcher.Constraint("DistanceY", 0, 2, 0, 1, 5.2))
pad6 = body.newObject("PartDesign::Pad", "Pad005")
pad6.Profile = sketch16
pad6.Length = 3

sketch17 = body.newObject("Sketcher::SketchObject", "Sketch016")
sketch17.AttachmentSupport = (doc.getObject("XZ_Plane"), [""])
sketch17.MapMode = "FlatFace"
sketch17.AttachmentOffset = App.Placement(App.Vector(0, 0, -5.2), App.Rotation())
sketch17.addGeometry(Part.LineSegment(App.Vector(-70, 127.5, 0), App.Vector(-70, 142.5, 0)), False)
sketch17.addGeometry(Part.LineSegment(App.Vector(-70, 142.5, 0), App.Vector(-52, 142.5, 0)), False)
sketch17.addGeometry(Part.LineSegment(App.Vector(-52, 142.5, 0), App.Vector(-52, 127.5, 0)), False)
sketch17.addGeometry(Part.LineSegment(App.Vector(-52, 127.5, 0), App.Vector(-70, 127.5, 0)), False)
sketch17.addGeometry(Part.LineSegment(App.Vector(52, 127.5, 0), App.Vector(52, 142.5, 0)), False)
sketch17.addGeometry(Part.LineSegment(App.Vector(52, 142.5, 0), App.Vector(70, 142.5, 0)), False)
sketch17.addGeometry(Part.LineSegment(App.Vector(70, 142.5, 0), App.Vector(70, 127.5, 0)), False)
sketch17.addGeometry(Part.LineSegment(App.Vector(70, 127.5, 0), App.Vector(52, 127.5, 0)), False)
sketch17.addGeometry(Part.LineSegment(App.Vector(-40, 127.5, 0), App.Vector(-40, 142.5, 0)), False)
sketch17.addGeometry(Part.LineSegment(App.Vector(-40, 142.5, 0), App.Vector(-34, 142.5, 0)), False)
sketch17.addGeometry(Part.LineSegment(App.Vector(-34, 142.5, 0), App.Vector(-34, 127.5, 0)), False)
sketch17.addGeometry(Part.LineSegment(App.Vector(-34, 127.5, 0), App.Vector(-40, 127.5, 0)), False)
sketch17.addGeometry(Part.LineSegment(App.Vector(34, 127.5, 0), App.Vector(34, 142.5, 0)), False)
sketch17.addGeometry(Part.LineSegment(App.Vector(34, 142.5, 0), App.Vector(40, 142.5, 0)), False)
sketch17.addGeometry(Part.LineSegment(App.Vector(40, 142.5, 0), App.Vector(40, 127.5, 0)), False)
sketch17.addGeometry(Part.LineSegment(App.Vector(40, 127.5, 0), App.Vector(34, 127.5, 0)), False)
sketch17.addConstraint(Sketcher.Constraint("Coincident", 0, 2, 1, 1))
sketch17.addConstraint(Sketcher.Constraint("Coincident", 1, 2, 2, 1))
sketch17.addConstraint(Sketcher.Constraint("Coincident", 2, 2, 3, 1))
sketch17.addConstraint(Sketcher.Constraint("Coincident", 3, 2, 0, 1))
sketch17.addConstraint(Sketcher.Constraint("Coincident", 4, 2, 5, 1))
sketch17.addConstraint(Sketcher.Constraint("Coincident", 5, 2, 6, 1))
sketch17.addConstraint(Sketcher.Constraint("Coincident", 6, 2, 7, 1))
sketch17.addConstraint(Sketcher.Constraint("Coincident", 7, 2, 4, 1))
sketch17.addConstraint(Sketcher.Constraint("Coincident", 8, 2, 9, 1))
sketch17.addConstraint(Sketcher.Constraint("Coincident", 9, 2, 10, 1))
sketch17.addConstraint(Sketcher.Constraint("Coincident", 10, 2, 11, 1))
sketch17.addConstraint(Sketcher.Constraint("Coincident", 11, 2, 8, 1))
sketch17.addConstraint(Sketcher.Constraint("Coincident", 12, 2, 13, 1))
sketch17.addConstraint(Sketcher.Constraint("Coincident", 13, 2, 14, 1))
sketch17.addConstraint(Sketcher.Constraint("Coincident", 14, 2, 15, 1))
sketch17.addConstraint(Sketcher.Constraint("Coincident", 15, 2, 12, 1))
sketch17.addConstraint(Sketcher.Constraint("Vertical", 0))
sketch17.addConstraint(Sketcher.Constraint("Horizontal", 1))
sketch17.addConstraint(Sketcher.Constraint("Vertical", 2))
sketch17.addConstraint(Sketcher.Constraint("Horizontal", 3))
sketch17.addConstraint(Sketcher.Constraint("Vertical", 4))
sketch17.addConstraint(Sketcher.Constraint("Horizontal", 5))
sketch17.addConstraint(Sketcher.Constraint("Vertical", 6))
sketch17.addConstraint(Sketcher.Constraint("Horizontal", 7))
sketch17.addConstraint(Sketcher.Constraint("Vertical", 8))
sketch17.addConstraint(Sketcher.Constraint("Horizontal", 9))
sketch17.addConstraint(Sketcher.Constraint("Vertical", 10))
sketch17.addConstraint(Sketcher.Constraint("Horizontal", 11))
sketch17.addConstraint(Sketcher.Constraint("Vertical", 12))
sketch17.addConstraint(Sketcher.Constraint("Horizontal", 13))
sketch17.addConstraint(Sketcher.Constraint("Vertical", 14))
sketch17.addConstraint(Sketcher.Constraint("Horizontal", 15))
sketch17.addConstraint(Sketcher.Constraint("Symmetric", 1, 2, 4, 2, -2))
sketch17.addConstraint(Sketcher.Constraint("Symmetric", 3, 2, 6, 2, -2))
sketch17.addConstraint(Sketcher.Constraint("Symmetric", 9, 2, 12, 2, -2))
sketch17.addConstraint(Sketcher.Constraint("Symmetric", 11, 2, 14, 2, -2))
sketch17.addConstraint(Sketcher.Constraint("Horizontal", 5, 2, 8, 2))
sketch17.addConstraint(Sketcher.Constraint("Horizontal", 7, 2, 10, 2))
sketch17.addConstraint(Sketcher.Constraint("DistanceX", 1, 1, 1, 2, 18.0))
sketch17.addConstraint(Sketcher.Constraint("DistanceX", 9, 1, 9, 2, 6.0))
sketch17.addConstraint(Sketcher.Constraint("DistanceY", 0, 1, 0, 2, 15.0))
sketch17.addConstraint(Sketcher.Constraint("DistanceX", 0, 2, -1, 1, 70.0))
sketch17.addConstraint(Sketcher.Constraint("DistanceX", 8, 2, -1, 1, 40.0))
sketch17.addConstraint(Sketcher.Constraint("DistanceY", -1, 1, 0, 2, 142.5))
pad7 = body.newObject("PartDesign::Pad", "Pad006")
pad7.Profile = sketch17
pad7.Length = 15
pad7.Reversed = True

sketch18 = body.newObject("Sketcher::SketchObject", "Sketch017")
sketch18.AttachmentSupport = (doc.getObject("YZ_Plane"), [""])
sketch18.MapMode = "FlatFace"
sketch18.addGeometry(Part.Circle(App.Vector(20.2, 135, 0), App.Vector(0, 0, 1), 4), False)
sketch18.addConstraint(Sketcher.Constraint("Diameter", 0, 8.0))
sketch18.addConstraint(Sketcher.Constraint("DistanceY", -1, 1, 0, 3, 135.0))
sketch18.addConstraint(Sketcher.Constraint("DistanceX", -1, 1, 0, 3, 20.2))
pocket8 = body.newObject("PartDesign::Pocket", "Pocket007")
pocket8.Profile = sketch18
pocket8.Length = 116
pocket8.Midplane = True

sketch19 = body.newObject("Sketcher::SketchObject", "Sketch018")
sketch19.AttachmentSupport = (doc.getObject("YZ_Plane"), [""])
sketch19.MapMode = "FlatFace"
sketch19.AttachmentOffset = App.Placement(App.Vector(0, 0, -55), App.Rotation())
sketch19.addGeometry(Part.Circle(App.Vector(20.2, 135, 0), App.Vector(0, 0, 1), 5), False)
sketch19.addConstraint(Sketcher.Constraint("Diameter", 0, 10.0))
sketch19.addConstraint(Sketcher.Constraint("DistanceY", -1, 1, 0, 3, 135.0))
sketch19.addConstraint(Sketcher.Constraint("DistanceX", -1, 1, 0, 3, 20.2))
pocket9 = body.newObject("PartDesign::Pocket", "Pocket008")
pocket9.Profile = sketch19
pocket9.Length = 4
pocket9.Midplane = True
doc.recompute()

linearpattern = body.newObject("PartDesign::LinearPattern", "LinearPattern")
linearpattern.Originals = [pocket9]
linearpattern.Direction = (doc.getObject("X_Axis"), [""])
linearpattern.Mode = "offset"
linearpattern.Offset = 18
linearpattern.Occurrences = 2
body.Tip = linearpattern
doc.recompute()

linearpattern2 = body.newObject("PartDesign::LinearPattern", "LinearPattern001")
linearpattern2.Originals = [pocket9]
linearpattern2.Direction = (doc.getObject("X_Axis"), [""])
linearpattern2.Mode = "offset"
linearpattern2.Offset = 92
linearpattern2.Occurrences = 2
body.Tip = linearpattern2

sketch20 = body.newObject("Sketcher::SketchObject", "Sketch019")
sketch20.AttachmentSupport = (doc.getObject("YZ_Plane"), [""])
sketch20.MapMode = "FlatFace"
sketch20.AttachmentOffset = App.Placement(App.Vector(0, 0, 55), App.Rotation())
sketch20.addGeometry(Part.Circle(App.Vector(20.2, 135, 0), App.Vector(0, 0, 1), 5), False)
sketch20.addConstraint(Sketcher.Constraint("Diameter", 0, 10.0))
sketch20.addConstraint(Sketcher.Constraint("DistanceY", -1, 1, 0, 3, 135.0))
sketch20.addConstraint(Sketcher.Constraint("DistanceX", -1, 1, 0, 3, 20.2))
pocket10 = body.newObject("PartDesign::Pocket", "Pocket009")
pocket10.Profile = sketch20
pocket10.Length = 4
pocket10.Midplane = True

sketch21 = body.newObject("Sketcher::SketchObject", "Sketch020")
sketch21.AttachmentSupport = (doc.getObject("XZ_Plane"), [""])
sketch21.MapMode = "FlatFace"
sketch21.AttachmentOffset = App.Placement(App.Vector(0, 0, -20.2), App.Rotation())
sketch21.addGeometry(Part.Circle(App.Vector(-63, 134.5, 0), App.Vector(0, 0, 1), 2), False)
sketch21.addGeometry(Part.Circle(App.Vector(63, 134.5, 0), App.Vector(0, 0, 1), 2), False)
sketch21.addConstraint(Sketcher.Constraint("Equal", 0, 1))
sketch21.addConstraint(Sketcher.Constraint("Symmetric", 0, 3, 1, 3, -2))
sketch21.addConstraint(Sketcher.Constraint("Diameter", 0, 4.0))
sketch21.addConstraint(Sketcher.Constraint("DistanceX", 0, 3, -1, 1, 63.0))
sketch21.addConstraint(Sketcher.Constraint("DistanceY", -1, 1, 0, 3, 134.5))
doc.recompute()
hole2 = body.newObject("PartDesign::Hole", "Hole001")
hole2.Profile = sketch21
hole2.ThreadType = "None"
hole2.Diameter = 4
hole2.DepthType = "Dimension"
hole2.Depth = 8
hole2.DrillPoint = "Angled"
hole2.DrillPointAngle = 118
hole2.HoleCutType = "Countersink"
hole2.HoleCutDiameter = 4.05
hole2.HoleCutCountersinkAngle = 90
hole2.Reversed = True

doc.recompute()
